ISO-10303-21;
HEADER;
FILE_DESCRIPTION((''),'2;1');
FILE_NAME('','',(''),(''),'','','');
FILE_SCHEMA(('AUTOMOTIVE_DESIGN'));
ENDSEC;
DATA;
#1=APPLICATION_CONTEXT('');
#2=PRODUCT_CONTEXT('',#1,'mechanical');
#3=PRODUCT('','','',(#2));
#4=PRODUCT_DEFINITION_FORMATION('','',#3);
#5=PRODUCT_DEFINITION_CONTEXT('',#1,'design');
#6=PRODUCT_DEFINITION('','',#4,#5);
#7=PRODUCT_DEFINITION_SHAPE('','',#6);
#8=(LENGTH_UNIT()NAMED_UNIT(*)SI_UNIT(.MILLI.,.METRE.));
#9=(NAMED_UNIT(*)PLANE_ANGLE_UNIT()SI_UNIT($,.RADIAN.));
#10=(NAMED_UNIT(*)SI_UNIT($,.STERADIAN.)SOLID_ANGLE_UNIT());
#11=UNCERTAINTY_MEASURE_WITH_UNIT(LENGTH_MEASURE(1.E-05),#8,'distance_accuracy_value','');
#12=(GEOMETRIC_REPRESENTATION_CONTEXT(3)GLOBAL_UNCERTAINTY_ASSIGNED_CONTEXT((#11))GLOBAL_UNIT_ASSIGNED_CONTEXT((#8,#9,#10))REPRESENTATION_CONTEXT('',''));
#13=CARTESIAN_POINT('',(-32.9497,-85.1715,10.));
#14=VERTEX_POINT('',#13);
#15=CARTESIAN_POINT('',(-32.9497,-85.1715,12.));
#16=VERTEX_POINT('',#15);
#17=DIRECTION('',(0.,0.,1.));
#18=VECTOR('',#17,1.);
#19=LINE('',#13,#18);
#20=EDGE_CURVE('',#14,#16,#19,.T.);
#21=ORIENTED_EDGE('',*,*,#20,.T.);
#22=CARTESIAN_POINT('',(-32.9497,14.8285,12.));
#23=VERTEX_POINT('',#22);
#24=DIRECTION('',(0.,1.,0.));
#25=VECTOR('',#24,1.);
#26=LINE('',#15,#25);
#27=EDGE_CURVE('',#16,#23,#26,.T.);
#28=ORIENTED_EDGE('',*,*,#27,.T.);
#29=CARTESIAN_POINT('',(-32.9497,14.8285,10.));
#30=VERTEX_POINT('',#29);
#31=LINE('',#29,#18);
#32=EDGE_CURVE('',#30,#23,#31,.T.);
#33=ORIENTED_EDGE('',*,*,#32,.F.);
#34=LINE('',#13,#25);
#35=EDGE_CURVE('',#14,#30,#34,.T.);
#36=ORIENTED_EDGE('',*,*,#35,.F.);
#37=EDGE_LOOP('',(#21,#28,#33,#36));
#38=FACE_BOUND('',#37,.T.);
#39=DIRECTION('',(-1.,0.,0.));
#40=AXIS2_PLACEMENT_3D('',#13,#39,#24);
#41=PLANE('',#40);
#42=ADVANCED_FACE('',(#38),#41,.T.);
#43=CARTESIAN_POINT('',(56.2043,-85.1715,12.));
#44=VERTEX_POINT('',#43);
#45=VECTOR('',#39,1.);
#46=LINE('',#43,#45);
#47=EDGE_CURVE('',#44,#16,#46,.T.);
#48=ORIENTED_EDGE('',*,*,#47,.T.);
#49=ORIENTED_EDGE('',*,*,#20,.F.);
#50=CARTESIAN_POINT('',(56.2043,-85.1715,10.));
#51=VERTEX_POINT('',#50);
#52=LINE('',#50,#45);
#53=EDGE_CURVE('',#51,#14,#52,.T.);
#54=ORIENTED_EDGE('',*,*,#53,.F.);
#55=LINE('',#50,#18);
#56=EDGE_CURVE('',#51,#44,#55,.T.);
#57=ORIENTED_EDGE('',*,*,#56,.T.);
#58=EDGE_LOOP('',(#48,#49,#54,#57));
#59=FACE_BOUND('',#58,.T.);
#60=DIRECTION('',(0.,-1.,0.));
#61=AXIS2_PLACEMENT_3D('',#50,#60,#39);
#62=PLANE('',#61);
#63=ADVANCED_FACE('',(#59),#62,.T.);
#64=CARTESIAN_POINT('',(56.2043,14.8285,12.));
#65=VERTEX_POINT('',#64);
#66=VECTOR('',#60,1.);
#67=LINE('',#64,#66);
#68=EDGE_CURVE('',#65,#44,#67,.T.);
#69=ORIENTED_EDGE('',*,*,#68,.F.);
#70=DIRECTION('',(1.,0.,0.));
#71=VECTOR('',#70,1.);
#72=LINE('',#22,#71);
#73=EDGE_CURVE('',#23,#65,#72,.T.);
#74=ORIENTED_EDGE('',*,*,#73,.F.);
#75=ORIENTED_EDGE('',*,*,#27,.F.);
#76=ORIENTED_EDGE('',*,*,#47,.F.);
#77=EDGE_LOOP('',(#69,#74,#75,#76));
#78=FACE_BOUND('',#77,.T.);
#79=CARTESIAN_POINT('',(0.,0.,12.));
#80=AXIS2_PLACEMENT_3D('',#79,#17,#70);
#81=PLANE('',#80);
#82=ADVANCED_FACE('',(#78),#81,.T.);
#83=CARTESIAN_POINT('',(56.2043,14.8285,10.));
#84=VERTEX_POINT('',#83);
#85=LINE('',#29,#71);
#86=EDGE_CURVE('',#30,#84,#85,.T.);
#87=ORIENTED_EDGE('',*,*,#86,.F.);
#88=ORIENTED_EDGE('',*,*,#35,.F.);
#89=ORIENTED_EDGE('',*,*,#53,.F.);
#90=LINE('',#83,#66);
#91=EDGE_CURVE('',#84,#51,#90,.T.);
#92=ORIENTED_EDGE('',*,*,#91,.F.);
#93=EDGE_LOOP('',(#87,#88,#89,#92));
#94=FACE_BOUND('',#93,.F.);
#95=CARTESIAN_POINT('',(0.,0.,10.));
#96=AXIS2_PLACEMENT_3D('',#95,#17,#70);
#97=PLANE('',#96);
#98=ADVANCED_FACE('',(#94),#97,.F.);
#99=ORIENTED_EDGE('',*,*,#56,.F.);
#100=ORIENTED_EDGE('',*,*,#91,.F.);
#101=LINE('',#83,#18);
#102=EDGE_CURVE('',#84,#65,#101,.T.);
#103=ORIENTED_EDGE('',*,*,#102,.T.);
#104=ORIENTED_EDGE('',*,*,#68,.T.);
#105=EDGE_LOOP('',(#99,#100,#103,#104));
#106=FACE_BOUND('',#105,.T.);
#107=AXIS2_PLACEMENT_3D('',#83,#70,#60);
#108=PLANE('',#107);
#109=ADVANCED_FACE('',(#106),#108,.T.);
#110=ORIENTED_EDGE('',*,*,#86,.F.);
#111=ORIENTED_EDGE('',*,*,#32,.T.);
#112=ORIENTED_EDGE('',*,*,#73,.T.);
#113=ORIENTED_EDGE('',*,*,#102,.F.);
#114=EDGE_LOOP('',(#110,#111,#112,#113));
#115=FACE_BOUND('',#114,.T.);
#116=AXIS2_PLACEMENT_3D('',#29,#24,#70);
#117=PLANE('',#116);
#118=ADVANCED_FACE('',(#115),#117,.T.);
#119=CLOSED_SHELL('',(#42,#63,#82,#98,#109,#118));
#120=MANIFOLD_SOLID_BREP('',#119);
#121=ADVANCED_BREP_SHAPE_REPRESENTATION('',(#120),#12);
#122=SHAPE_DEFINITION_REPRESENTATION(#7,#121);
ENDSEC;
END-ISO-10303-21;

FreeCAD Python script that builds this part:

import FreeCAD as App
import Part
import Sketcher
from FreeCAD import Vector
Q = App.Units.Quantity


def add_polygon(sketch, points):
    """Adds a closed chain of lines whose ends are joined by coincident constraints."""
    first, n = sketch.GeometryCount, len(points)
    for a, b in zip(points, points[1:] + points[:1]):
        sketch.addGeometry(Part.LineSegment(App.Vector(*a, 0), App.Vector(*b, 0)), False)
    for i in range(n):
        sketch.addConstraint(Sketcher.Constraint("Coincident", first + i, 2, first + (i + 1) % n, 1))

doc = App.newDocument("Part")
body = doc.addObject("PartDesign::Body", "Body")

sketch1 = doc.addObject("Sketcher::SketchObject", "Sketch")
body.addObject(sketch1)
sketch1.AttachmentSupport = (doc.XY_Plane, [""])
sketch1.MapMode = "FlatFace"
sketch1.AttachmentOffset = App.Placement(Vector(0, 0, 0.3937008 * 25.4), App.Rotation())
add_polygon(sketch1, [(56.2043, 14.8285), (-32.9497, 14.8285), (-32.9497, -85.1715), (56.2043, -85.1715)])
sketch1.addConstraint([
    Sketcher.Constraint("Horizontal", 0),
    Sketcher.Constraint("Vertical", 1),
    Sketcher.Constraint("Horizontal", 2),
    Sketcher.Constraint("Vertical", 3),
    Sketcher.Constraint("DistanceX", 0, 2, 0, 1, Q("3.51 in")),
    Sketcher.Constraint("DistanceY", 1, 2, 1, 1, Q("3.937 in")),
    Sketcher.Constraint("DistanceY", -1, 1, 0, 2, Q("0.5838 in")),
    Sketcher.Constraint("DistanceX", 0, 2, -1, 1, Q("32.9497 mm")),
])
pad1 = doc.addObject("PartDesign::Pad", "Pad")
body.addObject(pad1)
pad1.Profile = sketch1
pad1.Length = 2

doc.recompute()
